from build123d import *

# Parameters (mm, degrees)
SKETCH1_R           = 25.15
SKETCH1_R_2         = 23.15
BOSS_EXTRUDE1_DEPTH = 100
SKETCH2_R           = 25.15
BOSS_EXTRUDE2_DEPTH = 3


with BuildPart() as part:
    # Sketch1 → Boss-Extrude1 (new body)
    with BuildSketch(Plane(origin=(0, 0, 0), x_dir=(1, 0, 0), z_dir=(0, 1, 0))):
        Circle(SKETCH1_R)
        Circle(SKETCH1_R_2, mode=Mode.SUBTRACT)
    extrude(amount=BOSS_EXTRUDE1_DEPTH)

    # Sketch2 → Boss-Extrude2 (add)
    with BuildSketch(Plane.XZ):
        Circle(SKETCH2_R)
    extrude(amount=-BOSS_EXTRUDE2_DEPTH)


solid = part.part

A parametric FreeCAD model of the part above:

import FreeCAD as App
import Part
import Sketcher

doc = App.newDocument("Part")
body = doc.addObject("PartDesign::Body", "Body")

sketch1 = body.newObject("Sketcher::SketchObject", "Sketch")
sketch1.AttachmentSupport = (doc.getObject("XZ_Plane"), [""])
sketch1.MapMode = "FlatFace"
sketch1.addGeometry([
    Part.Circle(App.Vector(0, 0, 0), App.Vector(0, 0, 1), 25.15),
    Part.Circle(App.Vector(0, 0, 0), App.Vector(0, 0, 1), 23.15),
], False)
sketch1.addConstraint([
    Sketcher.Constraint("Coincident", 0, 3, -1, 1),
    Sketcher.Constraint("Coincident", 1, 3, -1, 1),
    Sketcher.Constraint("Diameter", 0, 50.3),
    Sketcher.Constraint("Diameter", 1, 46.3),
])
pad1 = body.newObject("PartDesign::Pad", "Pad")
pad1.Profile = sketch1
pad1.Length = 100
pad1.Reversed = True

sketch2 = body.newObject("Sketcher::SketchObject", "Sketch001")
sketch2.AttachmentSupport = (doc.getObject("XZ_Plane"), [""])
sketch2.MapMode = "FlatFace"
sketch2.addGeometry(Part.Circle(App.Vector(0, 0, 0), App.Vector(0, 0, 1), 25.15), False)
sketch2.addConstraint([
    Sketcher.Constraint("Coincident", 0, 3, -1, 1),
    Sketcher.Constraint("Diameter", 0, 50.3),
])
pad2 = body.newObject("PartDesign::Pad", "Pad001")
pad2.Profile = sketch2
pad2.Length = 3
pad2.Reversed = True

doc.recompute()
